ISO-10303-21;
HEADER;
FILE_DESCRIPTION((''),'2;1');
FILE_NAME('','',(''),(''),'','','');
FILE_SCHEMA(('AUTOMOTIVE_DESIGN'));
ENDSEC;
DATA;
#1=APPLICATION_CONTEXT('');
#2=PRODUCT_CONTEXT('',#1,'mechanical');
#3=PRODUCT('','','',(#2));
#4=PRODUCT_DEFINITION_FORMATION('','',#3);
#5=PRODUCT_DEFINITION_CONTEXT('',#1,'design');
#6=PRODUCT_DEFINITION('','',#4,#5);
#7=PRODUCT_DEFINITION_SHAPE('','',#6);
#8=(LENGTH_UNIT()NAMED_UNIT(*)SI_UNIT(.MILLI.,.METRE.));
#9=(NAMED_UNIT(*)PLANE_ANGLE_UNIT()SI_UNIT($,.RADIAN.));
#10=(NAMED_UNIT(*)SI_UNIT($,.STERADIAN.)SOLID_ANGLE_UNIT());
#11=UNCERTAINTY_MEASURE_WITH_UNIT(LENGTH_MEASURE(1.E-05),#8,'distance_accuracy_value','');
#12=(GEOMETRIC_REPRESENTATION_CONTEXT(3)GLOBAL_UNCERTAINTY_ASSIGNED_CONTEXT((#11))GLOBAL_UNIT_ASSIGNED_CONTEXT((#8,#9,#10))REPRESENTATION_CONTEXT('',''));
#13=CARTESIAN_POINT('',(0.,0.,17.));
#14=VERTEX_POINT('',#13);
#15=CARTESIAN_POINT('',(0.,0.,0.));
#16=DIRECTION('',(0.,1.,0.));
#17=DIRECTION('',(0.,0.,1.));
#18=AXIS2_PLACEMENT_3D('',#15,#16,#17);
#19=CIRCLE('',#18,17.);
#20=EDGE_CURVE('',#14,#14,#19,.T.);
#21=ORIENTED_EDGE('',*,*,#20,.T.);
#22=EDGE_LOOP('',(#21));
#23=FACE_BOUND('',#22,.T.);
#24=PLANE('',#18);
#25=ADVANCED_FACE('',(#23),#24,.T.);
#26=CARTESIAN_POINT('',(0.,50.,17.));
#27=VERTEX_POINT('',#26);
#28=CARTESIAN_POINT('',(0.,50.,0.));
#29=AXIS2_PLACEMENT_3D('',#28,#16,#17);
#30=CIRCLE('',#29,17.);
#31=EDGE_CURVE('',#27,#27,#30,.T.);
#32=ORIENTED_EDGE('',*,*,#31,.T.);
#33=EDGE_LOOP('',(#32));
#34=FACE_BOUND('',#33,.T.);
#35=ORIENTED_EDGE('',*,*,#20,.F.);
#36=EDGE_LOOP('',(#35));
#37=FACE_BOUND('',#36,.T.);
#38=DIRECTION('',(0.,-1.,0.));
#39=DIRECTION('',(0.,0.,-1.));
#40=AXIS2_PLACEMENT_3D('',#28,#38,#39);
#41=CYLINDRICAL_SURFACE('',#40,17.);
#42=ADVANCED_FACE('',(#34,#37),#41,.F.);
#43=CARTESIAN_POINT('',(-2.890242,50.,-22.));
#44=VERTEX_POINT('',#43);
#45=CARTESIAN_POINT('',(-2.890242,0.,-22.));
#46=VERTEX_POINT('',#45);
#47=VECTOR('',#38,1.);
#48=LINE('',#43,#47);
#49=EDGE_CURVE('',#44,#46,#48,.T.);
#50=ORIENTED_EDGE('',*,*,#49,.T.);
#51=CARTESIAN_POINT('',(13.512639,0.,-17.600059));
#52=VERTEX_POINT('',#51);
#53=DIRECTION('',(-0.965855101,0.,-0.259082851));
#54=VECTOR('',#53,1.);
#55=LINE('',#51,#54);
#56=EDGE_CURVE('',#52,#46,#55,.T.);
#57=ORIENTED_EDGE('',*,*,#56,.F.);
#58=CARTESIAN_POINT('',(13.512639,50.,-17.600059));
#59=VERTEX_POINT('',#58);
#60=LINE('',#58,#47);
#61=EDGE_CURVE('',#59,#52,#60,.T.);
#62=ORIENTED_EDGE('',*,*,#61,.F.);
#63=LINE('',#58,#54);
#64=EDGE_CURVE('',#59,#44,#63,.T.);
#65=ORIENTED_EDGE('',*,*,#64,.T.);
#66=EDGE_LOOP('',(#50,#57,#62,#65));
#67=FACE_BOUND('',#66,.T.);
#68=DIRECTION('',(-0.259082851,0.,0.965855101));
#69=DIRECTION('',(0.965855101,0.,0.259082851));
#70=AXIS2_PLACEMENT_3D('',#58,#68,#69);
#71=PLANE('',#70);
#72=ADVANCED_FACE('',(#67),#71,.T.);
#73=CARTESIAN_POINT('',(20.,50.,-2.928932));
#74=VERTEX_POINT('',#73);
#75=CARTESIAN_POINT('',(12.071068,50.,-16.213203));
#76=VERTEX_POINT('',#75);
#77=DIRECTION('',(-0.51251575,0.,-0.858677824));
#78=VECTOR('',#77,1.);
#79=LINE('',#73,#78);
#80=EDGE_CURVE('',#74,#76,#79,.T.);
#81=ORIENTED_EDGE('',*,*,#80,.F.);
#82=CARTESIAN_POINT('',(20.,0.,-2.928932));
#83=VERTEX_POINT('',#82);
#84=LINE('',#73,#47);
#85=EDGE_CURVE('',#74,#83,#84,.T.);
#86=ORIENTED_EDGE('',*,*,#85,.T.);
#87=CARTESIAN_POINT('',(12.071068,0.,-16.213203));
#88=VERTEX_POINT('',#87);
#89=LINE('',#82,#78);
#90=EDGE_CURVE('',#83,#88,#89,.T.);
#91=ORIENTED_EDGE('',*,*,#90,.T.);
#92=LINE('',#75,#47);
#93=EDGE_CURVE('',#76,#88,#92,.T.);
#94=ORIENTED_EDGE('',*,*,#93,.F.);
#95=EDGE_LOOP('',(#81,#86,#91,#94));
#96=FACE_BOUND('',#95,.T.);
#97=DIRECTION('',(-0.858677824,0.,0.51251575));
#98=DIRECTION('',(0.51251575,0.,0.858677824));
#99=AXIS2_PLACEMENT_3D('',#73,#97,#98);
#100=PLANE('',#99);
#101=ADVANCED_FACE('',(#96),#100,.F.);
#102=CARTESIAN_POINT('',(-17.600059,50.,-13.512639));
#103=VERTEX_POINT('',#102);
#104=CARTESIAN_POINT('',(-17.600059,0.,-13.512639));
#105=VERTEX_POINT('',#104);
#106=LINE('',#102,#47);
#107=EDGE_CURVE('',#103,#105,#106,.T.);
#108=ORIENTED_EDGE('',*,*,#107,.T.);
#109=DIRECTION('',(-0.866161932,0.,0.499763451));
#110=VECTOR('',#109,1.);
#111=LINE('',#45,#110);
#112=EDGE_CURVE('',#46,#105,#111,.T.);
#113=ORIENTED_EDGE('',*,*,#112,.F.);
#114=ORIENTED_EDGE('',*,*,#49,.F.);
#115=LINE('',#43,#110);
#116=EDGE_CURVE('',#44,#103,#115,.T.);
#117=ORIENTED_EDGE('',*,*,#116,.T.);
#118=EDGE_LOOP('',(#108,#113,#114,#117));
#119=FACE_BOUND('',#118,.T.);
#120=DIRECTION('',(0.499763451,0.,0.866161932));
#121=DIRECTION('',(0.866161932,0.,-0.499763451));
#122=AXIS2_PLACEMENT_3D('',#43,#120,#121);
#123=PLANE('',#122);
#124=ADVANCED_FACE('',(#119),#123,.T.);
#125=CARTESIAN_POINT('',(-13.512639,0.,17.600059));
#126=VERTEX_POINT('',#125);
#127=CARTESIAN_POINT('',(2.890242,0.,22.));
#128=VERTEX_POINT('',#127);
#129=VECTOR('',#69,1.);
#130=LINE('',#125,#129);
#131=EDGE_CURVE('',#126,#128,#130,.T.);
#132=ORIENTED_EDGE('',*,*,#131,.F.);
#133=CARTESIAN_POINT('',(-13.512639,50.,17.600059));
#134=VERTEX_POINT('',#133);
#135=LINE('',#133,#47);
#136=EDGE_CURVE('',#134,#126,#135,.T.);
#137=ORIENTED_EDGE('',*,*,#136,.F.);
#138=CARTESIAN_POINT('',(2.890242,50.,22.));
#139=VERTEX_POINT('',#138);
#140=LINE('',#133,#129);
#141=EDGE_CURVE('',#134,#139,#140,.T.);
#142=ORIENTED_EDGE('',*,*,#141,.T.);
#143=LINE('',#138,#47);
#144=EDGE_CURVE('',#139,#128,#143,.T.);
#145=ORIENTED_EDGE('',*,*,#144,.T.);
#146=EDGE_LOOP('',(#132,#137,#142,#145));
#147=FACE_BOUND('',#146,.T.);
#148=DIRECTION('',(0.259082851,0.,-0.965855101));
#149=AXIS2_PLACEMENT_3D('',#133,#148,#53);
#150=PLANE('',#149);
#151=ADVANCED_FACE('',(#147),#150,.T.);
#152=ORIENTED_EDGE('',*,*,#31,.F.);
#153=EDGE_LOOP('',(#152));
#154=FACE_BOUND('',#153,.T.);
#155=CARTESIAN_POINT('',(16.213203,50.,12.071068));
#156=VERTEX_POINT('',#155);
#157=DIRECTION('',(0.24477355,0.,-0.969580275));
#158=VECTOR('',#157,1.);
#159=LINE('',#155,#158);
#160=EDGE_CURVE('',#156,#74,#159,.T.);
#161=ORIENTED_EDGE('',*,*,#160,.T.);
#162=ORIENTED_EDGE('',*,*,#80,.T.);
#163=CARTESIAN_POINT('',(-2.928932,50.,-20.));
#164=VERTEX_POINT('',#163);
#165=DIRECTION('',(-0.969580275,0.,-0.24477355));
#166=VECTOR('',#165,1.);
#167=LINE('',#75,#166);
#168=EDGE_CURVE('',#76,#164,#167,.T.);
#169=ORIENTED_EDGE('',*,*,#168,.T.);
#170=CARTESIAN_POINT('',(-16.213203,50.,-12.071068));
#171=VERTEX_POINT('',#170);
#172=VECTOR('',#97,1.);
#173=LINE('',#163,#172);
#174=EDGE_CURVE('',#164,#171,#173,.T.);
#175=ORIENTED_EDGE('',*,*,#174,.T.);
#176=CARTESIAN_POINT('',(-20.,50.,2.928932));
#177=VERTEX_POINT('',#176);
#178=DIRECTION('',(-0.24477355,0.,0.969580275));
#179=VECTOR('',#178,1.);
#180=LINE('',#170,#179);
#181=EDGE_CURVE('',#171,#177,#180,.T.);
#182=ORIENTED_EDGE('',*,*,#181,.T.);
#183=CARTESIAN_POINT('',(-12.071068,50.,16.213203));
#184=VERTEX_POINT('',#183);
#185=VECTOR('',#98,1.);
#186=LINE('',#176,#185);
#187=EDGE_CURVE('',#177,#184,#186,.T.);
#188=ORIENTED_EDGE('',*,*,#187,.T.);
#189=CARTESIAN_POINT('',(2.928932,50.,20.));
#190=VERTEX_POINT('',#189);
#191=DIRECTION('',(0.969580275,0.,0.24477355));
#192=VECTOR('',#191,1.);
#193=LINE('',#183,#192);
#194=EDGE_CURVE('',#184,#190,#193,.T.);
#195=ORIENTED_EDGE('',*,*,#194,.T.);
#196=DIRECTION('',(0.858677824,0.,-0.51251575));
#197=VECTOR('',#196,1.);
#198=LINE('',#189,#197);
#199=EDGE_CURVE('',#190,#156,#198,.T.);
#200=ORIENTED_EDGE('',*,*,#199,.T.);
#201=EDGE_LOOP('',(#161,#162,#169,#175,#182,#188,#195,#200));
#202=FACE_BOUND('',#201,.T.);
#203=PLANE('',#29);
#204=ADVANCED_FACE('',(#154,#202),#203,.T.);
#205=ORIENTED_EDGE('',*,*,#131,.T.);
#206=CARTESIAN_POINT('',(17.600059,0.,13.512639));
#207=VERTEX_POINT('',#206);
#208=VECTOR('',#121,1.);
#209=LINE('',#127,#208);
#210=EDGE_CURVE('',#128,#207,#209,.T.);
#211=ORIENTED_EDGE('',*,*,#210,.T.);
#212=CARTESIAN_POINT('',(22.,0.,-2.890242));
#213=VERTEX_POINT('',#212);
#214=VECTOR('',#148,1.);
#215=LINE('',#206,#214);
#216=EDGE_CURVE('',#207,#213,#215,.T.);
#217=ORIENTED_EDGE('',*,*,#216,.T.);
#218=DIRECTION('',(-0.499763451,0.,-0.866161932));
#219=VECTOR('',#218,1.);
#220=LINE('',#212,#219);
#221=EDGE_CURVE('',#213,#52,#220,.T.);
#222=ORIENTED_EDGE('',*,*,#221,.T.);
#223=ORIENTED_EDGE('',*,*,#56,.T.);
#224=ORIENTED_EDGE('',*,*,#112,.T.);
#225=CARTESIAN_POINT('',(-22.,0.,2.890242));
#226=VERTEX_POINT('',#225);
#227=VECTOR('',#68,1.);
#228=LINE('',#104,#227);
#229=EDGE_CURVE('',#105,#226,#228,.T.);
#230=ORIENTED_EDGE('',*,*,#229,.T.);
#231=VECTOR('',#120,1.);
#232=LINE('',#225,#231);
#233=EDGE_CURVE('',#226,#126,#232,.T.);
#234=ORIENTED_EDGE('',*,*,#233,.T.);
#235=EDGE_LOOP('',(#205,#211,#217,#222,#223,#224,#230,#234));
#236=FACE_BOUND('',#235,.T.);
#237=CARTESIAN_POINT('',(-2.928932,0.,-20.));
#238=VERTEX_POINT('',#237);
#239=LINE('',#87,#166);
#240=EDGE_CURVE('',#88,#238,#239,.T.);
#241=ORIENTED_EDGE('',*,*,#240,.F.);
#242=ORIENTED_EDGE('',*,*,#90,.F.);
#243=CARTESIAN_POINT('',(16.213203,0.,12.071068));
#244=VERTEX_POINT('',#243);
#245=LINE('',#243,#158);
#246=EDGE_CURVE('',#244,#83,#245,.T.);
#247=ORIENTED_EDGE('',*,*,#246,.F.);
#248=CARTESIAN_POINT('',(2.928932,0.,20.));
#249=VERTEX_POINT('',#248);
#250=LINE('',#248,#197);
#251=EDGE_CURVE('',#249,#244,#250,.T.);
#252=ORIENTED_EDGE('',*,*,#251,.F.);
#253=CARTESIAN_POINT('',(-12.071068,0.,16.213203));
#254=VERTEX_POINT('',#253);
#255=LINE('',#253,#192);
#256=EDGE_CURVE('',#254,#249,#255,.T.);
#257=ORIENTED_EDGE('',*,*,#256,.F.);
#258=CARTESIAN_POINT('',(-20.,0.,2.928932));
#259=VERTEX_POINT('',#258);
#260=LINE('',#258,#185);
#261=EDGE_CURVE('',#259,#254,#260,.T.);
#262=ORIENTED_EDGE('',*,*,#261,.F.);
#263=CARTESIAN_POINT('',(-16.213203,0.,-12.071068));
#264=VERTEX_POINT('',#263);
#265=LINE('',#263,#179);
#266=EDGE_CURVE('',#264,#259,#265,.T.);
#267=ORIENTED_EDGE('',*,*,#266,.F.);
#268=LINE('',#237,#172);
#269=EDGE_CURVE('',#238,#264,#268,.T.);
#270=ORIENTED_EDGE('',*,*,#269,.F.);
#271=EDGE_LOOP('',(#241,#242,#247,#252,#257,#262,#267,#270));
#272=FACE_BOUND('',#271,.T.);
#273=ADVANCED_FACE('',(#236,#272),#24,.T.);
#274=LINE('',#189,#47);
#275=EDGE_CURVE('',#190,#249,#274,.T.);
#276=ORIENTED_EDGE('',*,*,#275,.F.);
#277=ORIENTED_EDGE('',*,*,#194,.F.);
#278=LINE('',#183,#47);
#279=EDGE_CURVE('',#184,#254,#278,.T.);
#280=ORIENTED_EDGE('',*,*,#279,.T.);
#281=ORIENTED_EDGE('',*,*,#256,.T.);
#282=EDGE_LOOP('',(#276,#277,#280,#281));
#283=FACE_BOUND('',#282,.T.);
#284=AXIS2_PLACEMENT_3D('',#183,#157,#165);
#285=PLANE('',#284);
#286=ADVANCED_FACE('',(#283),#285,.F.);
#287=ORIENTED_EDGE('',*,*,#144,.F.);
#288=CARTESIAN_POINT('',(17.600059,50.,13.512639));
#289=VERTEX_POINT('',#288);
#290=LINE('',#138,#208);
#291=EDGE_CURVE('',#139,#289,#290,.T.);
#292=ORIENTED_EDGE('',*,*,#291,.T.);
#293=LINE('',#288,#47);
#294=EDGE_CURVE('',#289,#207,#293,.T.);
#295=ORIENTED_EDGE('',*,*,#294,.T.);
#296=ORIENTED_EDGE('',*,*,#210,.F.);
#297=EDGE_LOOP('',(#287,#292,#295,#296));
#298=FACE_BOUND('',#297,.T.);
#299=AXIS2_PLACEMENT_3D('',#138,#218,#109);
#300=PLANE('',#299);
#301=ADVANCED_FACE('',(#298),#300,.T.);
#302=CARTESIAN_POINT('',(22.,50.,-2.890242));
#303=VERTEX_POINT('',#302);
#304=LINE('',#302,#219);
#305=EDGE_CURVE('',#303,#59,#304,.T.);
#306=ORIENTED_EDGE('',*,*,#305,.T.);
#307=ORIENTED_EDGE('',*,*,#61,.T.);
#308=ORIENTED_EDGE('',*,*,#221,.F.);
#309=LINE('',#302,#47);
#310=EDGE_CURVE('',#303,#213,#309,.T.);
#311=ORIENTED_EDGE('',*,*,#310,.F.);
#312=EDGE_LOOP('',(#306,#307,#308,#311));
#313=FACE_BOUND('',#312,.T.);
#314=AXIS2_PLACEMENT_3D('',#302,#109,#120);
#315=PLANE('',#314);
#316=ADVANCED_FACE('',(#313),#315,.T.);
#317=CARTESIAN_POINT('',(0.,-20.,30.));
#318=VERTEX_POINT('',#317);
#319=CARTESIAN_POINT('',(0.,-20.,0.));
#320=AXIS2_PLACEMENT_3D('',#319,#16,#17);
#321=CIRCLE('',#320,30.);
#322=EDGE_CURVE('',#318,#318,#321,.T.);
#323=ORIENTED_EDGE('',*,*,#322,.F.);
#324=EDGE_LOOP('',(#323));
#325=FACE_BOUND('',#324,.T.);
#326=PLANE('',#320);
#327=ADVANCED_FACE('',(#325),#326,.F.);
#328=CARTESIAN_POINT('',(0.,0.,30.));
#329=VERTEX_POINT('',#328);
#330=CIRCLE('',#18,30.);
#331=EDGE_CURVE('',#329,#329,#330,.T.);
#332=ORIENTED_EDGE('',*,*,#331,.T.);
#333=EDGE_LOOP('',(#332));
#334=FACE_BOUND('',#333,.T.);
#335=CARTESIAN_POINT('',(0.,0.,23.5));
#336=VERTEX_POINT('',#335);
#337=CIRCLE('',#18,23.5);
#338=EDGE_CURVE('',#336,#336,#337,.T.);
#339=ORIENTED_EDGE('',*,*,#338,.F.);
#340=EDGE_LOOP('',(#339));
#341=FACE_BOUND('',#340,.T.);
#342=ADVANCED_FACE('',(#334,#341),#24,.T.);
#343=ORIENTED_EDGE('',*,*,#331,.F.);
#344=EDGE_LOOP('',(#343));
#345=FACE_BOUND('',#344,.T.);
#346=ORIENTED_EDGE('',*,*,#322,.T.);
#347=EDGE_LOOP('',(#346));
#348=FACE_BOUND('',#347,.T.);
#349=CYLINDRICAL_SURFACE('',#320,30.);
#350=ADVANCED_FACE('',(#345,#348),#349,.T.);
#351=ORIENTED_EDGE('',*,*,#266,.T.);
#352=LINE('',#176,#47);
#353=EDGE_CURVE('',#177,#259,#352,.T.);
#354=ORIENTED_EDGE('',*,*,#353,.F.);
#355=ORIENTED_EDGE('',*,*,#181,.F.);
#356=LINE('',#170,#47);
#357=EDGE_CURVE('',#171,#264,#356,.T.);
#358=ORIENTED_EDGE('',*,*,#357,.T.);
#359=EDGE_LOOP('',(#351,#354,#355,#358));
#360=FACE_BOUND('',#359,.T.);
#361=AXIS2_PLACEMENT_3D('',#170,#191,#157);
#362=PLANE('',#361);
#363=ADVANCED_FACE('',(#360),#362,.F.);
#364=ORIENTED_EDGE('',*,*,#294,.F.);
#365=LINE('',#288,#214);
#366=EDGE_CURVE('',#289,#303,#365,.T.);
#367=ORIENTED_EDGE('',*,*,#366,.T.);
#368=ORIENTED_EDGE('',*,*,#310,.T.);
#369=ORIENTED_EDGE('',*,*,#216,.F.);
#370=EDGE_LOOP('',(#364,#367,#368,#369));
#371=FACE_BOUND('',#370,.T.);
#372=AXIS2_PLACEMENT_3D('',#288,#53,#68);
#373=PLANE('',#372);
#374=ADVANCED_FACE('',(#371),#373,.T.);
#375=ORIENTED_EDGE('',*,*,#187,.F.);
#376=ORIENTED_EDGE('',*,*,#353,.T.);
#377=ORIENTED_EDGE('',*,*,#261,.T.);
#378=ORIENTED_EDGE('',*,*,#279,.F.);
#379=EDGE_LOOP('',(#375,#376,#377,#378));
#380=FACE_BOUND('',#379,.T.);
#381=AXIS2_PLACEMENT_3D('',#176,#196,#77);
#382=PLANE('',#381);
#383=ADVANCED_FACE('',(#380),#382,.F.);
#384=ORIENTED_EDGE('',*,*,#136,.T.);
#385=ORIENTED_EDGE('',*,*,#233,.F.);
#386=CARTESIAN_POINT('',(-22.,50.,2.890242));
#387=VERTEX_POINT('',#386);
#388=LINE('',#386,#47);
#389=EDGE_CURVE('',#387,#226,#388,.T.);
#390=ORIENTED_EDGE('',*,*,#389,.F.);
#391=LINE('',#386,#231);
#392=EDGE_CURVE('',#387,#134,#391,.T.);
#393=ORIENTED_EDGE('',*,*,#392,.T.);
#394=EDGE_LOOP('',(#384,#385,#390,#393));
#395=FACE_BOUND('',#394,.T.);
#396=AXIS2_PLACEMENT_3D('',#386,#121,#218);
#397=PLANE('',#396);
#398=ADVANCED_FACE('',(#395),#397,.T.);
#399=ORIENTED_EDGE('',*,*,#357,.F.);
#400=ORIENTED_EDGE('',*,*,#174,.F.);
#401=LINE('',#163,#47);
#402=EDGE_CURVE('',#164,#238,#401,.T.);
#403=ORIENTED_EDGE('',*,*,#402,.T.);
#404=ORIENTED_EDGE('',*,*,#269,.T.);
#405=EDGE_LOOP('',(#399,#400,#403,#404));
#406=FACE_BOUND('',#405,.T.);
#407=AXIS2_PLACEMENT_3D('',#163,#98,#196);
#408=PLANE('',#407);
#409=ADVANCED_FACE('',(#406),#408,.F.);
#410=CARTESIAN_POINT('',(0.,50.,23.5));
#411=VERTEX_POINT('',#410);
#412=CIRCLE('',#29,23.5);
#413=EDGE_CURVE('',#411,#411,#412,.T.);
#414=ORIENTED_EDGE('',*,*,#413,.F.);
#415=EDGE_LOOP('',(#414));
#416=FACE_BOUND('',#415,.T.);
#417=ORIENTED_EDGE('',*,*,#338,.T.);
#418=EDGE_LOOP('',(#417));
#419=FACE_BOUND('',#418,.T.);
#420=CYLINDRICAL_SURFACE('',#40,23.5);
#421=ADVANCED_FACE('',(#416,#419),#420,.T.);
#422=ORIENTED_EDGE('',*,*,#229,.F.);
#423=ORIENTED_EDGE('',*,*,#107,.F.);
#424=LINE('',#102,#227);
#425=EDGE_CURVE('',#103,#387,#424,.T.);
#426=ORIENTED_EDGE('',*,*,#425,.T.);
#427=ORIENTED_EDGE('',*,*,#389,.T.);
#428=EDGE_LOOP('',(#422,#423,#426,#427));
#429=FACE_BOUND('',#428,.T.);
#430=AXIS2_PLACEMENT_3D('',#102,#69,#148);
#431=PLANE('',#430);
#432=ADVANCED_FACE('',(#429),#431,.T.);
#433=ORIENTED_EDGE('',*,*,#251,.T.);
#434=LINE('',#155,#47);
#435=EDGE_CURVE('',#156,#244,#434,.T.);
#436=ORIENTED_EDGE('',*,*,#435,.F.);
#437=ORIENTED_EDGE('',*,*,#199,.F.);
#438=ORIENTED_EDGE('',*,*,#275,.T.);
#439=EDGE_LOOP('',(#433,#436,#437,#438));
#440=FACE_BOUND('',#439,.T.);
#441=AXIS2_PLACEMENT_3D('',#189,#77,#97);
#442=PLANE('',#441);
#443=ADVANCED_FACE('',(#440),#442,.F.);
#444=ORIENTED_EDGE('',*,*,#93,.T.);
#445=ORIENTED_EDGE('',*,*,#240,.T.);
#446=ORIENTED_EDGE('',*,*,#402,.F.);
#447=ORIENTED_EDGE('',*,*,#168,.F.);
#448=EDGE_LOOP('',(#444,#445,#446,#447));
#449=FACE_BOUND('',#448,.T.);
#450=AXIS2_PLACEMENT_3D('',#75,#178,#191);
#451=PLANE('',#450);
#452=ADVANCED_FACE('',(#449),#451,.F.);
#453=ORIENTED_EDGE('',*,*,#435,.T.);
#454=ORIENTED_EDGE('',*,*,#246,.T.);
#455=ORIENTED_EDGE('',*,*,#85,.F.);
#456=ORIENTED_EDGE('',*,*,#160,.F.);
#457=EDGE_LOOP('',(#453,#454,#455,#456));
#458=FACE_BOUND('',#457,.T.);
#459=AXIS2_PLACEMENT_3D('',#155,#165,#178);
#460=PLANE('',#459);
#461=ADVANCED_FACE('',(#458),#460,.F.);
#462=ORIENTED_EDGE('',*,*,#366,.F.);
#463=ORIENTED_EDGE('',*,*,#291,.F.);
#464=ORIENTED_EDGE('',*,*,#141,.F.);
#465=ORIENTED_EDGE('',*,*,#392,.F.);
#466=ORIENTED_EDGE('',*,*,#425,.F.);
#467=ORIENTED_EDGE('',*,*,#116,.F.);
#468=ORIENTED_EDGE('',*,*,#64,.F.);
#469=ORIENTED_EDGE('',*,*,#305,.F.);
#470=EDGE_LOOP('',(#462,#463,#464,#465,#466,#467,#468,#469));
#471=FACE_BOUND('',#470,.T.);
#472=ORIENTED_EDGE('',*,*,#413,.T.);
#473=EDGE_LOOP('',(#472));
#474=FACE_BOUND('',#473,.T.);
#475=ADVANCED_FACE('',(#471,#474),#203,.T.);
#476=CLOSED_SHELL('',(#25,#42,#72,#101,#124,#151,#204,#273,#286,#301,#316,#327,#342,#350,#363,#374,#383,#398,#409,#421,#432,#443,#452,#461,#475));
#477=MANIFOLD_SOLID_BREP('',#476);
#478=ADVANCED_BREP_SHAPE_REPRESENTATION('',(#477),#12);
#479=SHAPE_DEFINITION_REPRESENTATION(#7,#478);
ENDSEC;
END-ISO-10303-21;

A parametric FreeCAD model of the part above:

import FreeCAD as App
import Part
import Sketcher
from FreeCAD import Vector
Q = App.Units.Quantity


def add_polygon(sketch, points):
    """Adds a closed chain of lines whose ends are joined by coincident constraints."""
    first, n = sketch.GeometryCount, len(points)
    for a, b in zip(points, points[1:] + points[:1]):
        sketch.addGeometry(Part.LineSegment(App.Vector(*a, 0), App.Vector(*b, 0)), False)
    for i in range(n):
        sketch.addConstraint(Sketcher.Constraint("Coincident", first + i, 2, first + (i + 1) % n, 1))

doc = App.newDocument("Part")
body = doc.addObject("PartDesign::Body", "Body")

# Sketch on XZ plane
sketch1 = doc.addObject("Sketcher::SketchObject", "Sketch")
body.addObject(sketch1)
sketch1.AttachmentSupport = (doc.XZ_Plane, [""])
sketch1.MapMode = "FlatFace"
add_polygon(sketch1, [(16, 12), (20, -3), (12, -16), (-3, -20), (-16, -12), (-20, 3), (-12, 16), (3, 20)])  # lines 0-7
sketch1.addGeometry(Part.Circle(Vector(0, 0, 0), Vector(0, 0, 1), 17), False)  # 8
sketch1.addConstraint([
    Sketcher.Constraint("Coincident", 8, 3, -1, 1),
    Sketcher.Constraint("Symmetric", 0, 2, 4, 2, -1, 1),
    Sketcher.Constraint("Symmetric", 1, 2, 5, 2, -1, 1),
    Sketcher.Constraint("Symmetric", 2, 2, 6, 2, -1, 1),
    Sketcher.Constraint("Symmetric", 3, 2, 7, 2, -1, 1),
    Sketcher.Constraint("Perpendicular", 0, 2),
    Sketcher.Constraint("Perpendicular", 1, 3),
    Sketcher.Constraint("Equal", 0, 1),
    Sketcher.Constraint("Equal", 1, 2),
    Sketcher.Constraint("Equal", 2, 3),
    Sketcher.Constraint("Diameter", 8, Q("34 mm")),
    Sketcher.Constraint("DistanceX", -1, 1, 0, 2, Q("20 mm")),
    Sketcher.Constraint("DistanceX", 2, 2, 1, 2, Q("15 mm")),
    Sketcher.Constraint("Distance", 0, Q("15.470612 mm")),
])
pad1 = doc.addObject("PartDesign::Pad", "Pad")
body.addObject(pad1)
pad1.Profile = sketch1
pad1.Length = 50
pad1.Reversed = True
body2 = doc.addObject("PartDesign::Body", "Body001")

# Sketch on XZ plane
sketch2 = doc.addObject("Sketcher::SketchObject", "Sketch001")
body2.addObject(sketch2)
sketch2.AttachmentSupport = (doc.getObject("XZ_Plane001"), [""])
sketch2.MapMode = "FlatFace"
sketch2.addGeometry(Part.Circle(Vector(0, 0, 0), Vector(0, 0, 1), 24), False)  # 0
add_polygon(sketch2, [(-18, -14), (-3, -22), (14, -18), (22, -3), (18, 14), (3, 22), (-14, 18), (-22, 3)])  # lines 1-8
sketch2.addConstraint([
    Sketcher.Constraint("Coincident", 0, 3, -1, 1),
    Sketcher.Constraint("Symmetric", 1, 2, 5, 2, -1, 1),
    Sketcher.Constraint("Symmetric", 2, 2, 6, 2, -1, 1),
    Sketcher.Constraint("Symmetric", 3, 2, 7, 2, -1, 1),
    Sketcher.Constraint("Symmetric", 4, 2, 8, 2, -1, 1),
    Sketcher.Constraint("Perpendicular", 1, 3),
    Sketcher.Constraint("Perpendicular", 2, 4),
    Sketcher.Constraint("Equal", 1, 2),
    Sketcher.Constraint("Equal", 2, 3),
    Sketcher.Constraint("Equal", 3, 4),
    Sketcher.Constraint("Diameter", 0, Q("47 mm")),
    Sketcher.Constraint("DistanceY", 1, 2, -1, 1, Q("22 mm")),
    Sketcher.Constraint("DistanceY", 2, 2, 4, 2, Q("31.112698 mm")),
    Sketcher.Constraint("DistanceX", 1, 2, 4, 2, Q("20.490301 mm")),
])
pad2 = doc.addObject("PartDesign::Pad", "Pad001")
body2.addObject(pad2)
pad2.Profile = sketch2
pad2.Length = 50
pad2.Reversed = True
body.AllowCompound = True
doc.recompute()

boolean = doc.addObject("PartDesign::Boolean", "Boolean")
body.addObject(boolean)
boolean.Type = "Fuse"
boolean.addObjects([body2])

# Sketch on XZ plane
sketch3 = doc.addObject("Sketcher::SketchObject", "Sketch002")
body.addObject(sketch3)
sketch3.AttachmentSupport = (doc.XZ_Plane, [""])
sketch3.MapMode = "FlatFace"
sketch3.addGeometry(Part.Circle(Vector(0, 0, 0), Vector(0, 0, 1), 30), False)
sketch3.addConstraint([
    Sketcher.Constraint("Coincident", 0, 3, -1, 1),
    Sketcher.Constraint("Diameter", 0, Q("60 mm")),
])
pad3 = doc.addObject("PartDesign::Pad", "Pad002")
body.addObject(pad3)
pad3.Profile = sketch3
pad3.Length = 20

doc.recompute()
